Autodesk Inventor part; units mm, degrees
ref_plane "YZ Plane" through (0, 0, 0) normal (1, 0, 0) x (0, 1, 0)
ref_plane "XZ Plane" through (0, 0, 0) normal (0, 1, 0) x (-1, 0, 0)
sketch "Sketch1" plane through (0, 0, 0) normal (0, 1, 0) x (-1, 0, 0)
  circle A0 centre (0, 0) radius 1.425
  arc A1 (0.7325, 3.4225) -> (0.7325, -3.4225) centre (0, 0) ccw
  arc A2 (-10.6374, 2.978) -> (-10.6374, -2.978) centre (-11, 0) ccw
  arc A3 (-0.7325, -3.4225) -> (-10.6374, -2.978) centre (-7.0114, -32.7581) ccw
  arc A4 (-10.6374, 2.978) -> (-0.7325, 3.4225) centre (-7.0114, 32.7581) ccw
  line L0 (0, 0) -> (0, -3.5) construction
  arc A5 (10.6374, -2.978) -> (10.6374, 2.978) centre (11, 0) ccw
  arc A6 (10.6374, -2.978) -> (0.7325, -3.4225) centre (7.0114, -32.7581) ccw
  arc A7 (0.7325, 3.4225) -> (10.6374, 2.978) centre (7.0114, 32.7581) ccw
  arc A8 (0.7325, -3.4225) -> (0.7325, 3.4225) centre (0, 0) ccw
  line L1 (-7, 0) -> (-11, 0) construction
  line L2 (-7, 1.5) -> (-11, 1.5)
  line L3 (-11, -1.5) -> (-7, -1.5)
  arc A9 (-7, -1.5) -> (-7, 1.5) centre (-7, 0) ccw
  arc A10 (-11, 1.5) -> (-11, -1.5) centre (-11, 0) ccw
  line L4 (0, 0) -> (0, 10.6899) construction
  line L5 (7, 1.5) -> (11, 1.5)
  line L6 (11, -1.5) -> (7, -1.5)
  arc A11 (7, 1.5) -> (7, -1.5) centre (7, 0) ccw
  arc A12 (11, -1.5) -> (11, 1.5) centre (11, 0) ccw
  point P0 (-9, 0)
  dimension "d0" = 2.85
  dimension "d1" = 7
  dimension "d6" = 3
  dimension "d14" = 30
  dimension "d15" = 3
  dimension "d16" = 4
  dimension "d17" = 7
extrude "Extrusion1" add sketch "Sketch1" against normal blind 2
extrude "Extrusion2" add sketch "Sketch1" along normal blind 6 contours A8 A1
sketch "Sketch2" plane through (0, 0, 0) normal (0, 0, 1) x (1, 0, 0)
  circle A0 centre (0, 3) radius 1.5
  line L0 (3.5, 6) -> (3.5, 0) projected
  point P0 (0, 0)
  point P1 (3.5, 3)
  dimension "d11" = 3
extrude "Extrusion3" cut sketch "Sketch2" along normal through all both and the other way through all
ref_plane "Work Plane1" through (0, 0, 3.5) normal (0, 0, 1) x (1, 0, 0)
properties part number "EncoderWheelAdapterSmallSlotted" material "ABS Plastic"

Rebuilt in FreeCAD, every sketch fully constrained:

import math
import FreeCAD as App
import Part
import Sketcher
from FreeCAD import Vector
Q = App.Units.Quantity

doc = App.newDocument("Part")
body = doc.addObject("PartDesign::Body", "Body")

# Sketch on XZ plane
sketch1 = doc.addObject("Sketcher::SketchObject", "Sketch")
body.addObject(sketch1)
sketch1.AttachmentSupport = (doc.XZ_Plane, [""])
sketch1.MapMode = "FlatFace"
sketch1.addGeometry(Part.ArcOfCircle(Part.Circle(Vector(0, 0, 0), Vector(0, 0, 1), 3.5), math.radians(-102), math.radians(-78)), False)
sketch1.addGeometry(Part.ArcOfCircle(Part.Circle(Vector(-7, -32.8, 0), Vector(0, 0, 1), 30), math.radians(77.92), math.radians(96.94)), False)
sketch1.addGeometry(Part.ArcOfCircle(Part.Circle(Vector(-11, 0, 0), Vector(0, 0, 1), 3), math.radians(83), math.radians(277)), False)
sketch1.addGeometry(Part.ArcOfCircle(Part.Circle(Vector(-7, 32.8, 0), Vector(0, 0, 1), 30), math.radians(-96.94), math.radians(-77.92)), False)
sketch1.addGeometry(Part.ArcOfCircle(Part.Circle(Vector(0, 0, 0), Vector(0, 0, 1), 3.5), math.radians(78), math.radians(102)), False)
sketch1.addGeometry(Part.ArcOfCircle(Part.Circle(Vector(7, 32.8, 0), Vector(0, 0, 1), 30), math.radians(-102.08), math.radians(-83.06)), False)
sketch1.addGeometry(Part.ArcOfCircle(Part.Circle(Vector(11, 0, 0), Vector(0, 0, 1), 3), math.radians(-97), math.radians(97)), False)
sketch1.addGeometry(Part.ArcOfCircle(Part.Circle(Vector(7, -32.8, 0), Vector(0, 0, 1), 30), math.radians(83.06), math.radians(102.08)), False)
sketch1.addGeometry(Part.Circle(Vector(0, 0, 0), Vector(0, 0, 1), 1.4), False)
sketch1.addGeometry(Part.LineSegment(Vector(-7, 1.5, 0), Vector(-11, 1.5, 0)), False)
sketch1.addGeometry(Part.ArcOfCircle(Part.Circle(Vector(-11, 0, 0), Vector(0, 0, 1), 1.5), math.radians(90), math.radians(270)), False)
sketch1.addGeometry(Part.LineSegment(Vector(-11, -1.5, 0), Vector(-7, -1.5, 0)), False)
sketch1.addGeometry(Part.ArcOfCircle(Part.Circle(Vector(-7, 0, 0), Vector(0, 0, 1), 1.5), math.radians(-90), math.radians(90)), False)
sketch1.addGeometry(Part.ArcOfCircle(Part.Circle(Vector(7, 0, 0), Vector(0, 0, 1), 1.5), math.radians(90), math.radians(270)), False)
sketch1.addGeometry(Part.LineSegment(Vector(7, -1.5, 0), Vector(11, -1.5, 0)), False)
sketch1.addGeometry(Part.ArcOfCircle(Part.Circle(Vector(11, 0, 0), Vector(0, 0, 1), 1.5), math.radians(-90), math.radians(90)), False)
sketch1.addGeometry(Part.LineSegment(Vector(11, 1.5, 0), Vector(7, 1.5, 0)), False)
sketch1.addConstraint(Sketcher.Constraint("Tangent", 0, 1, 1, 1))
sketch1.addConstraint(Sketcher.Constraint("Tangent", 1, 2, 2, 2))
sketch1.addConstraint(Sketcher.Constraint("Tangent", 2, 1, 3, 1))
sketch1.addConstraint(Sketcher.Constraint("Tangent", 3, 2, 4, 2))
sketch1.addConstraint(Sketcher.Constraint("Tangent", 4, 1, 5, 1))
sketch1.addConstraint(Sketcher.Constraint("Tangent", 5, 2, 6, 2))
sketch1.addConstraint(Sketcher.Constraint("Tangent", 6, 1, 7, 1))
sketch1.addConstraint(Sketcher.Constraint("Tangent", 7, 2, 0, 2))
sketch1.addConstraint(Sketcher.Constraint("Tangent", 9, 2, 10, 1))
sketch1.addConstraint(Sketcher.Constraint("Tangent", 10, 2, 11, 1))
sketch1.addConstraint(Sketcher.Constraint("Tangent", 11, 2, 12, 1))
sketch1.addConstraint(Sketcher.Constraint("Tangent", 12, 2, 9, 1))
sketch1.addConstraint(Sketcher.Constraint("Tangent", 13, 2, 14, 1))
sketch1.addConstraint(Sketcher.Constraint("Tangent", 14, 2, 15, 1))
sketch1.addConstraint(Sketcher.Constraint("Tangent", 15, 2, 16, 1))
sketch1.addConstraint(Sketcher.Constraint("Tangent", 16, 2, 13, 1))
sketch1.addConstraint(Sketcher.Constraint("Horizontal", 9))
sketch1.addConstraint(Sketcher.Constraint("Horizontal", 11))
sketch1.addConstraint(Sketcher.Constraint("Horizontal", 14))
sketch1.addConstraint(Sketcher.Constraint("Horizontal", 16))
sketch1.addConstraint(Sketcher.Constraint("Coincident", 0, 3, -1, 1))
sketch1.addConstraint(Sketcher.Constraint("Coincident", 4, 3, -1, 1))
sketch1.addConstraint(Sketcher.Constraint("Coincident", 8, 3, -1, 1))
sketch1.addConstraint(Sketcher.Constraint("Coincident", 10, 3, 2, 3))
sketch1.addConstraint(Sketcher.Constraint("Coincident", 15, 3, 6, 3))
sketch1.addConstraint(Sketcher.Constraint("Equal", 1, 3))
sketch1.addConstraint(Sketcher.Constraint("Equal", 0, 4))
sketch1.addConstraint(Sketcher.Constraint("Equal", 3, 5))
sketch1.addConstraint(Sketcher.Constraint("Equal", 2, 6))
sketch1.addConstraint(Sketcher.Constraint("Equal", 5, 7))
sketch1.addConstraint(Sketcher.Constraint("Equal", 12, 13))
sketch1.addConstraint(Sketcher.Constraint("Symmetric", 2, 3, 6, 3, -1, 1))
sketch1.addConstraint(Sketcher.Constraint("Symmetric", 12, 3, 13, 3, -2))
sketch1.addConstraint(Sketcher.Constraint("Radius", 1, Q("30 mm")))
sketch1.addConstraint(Sketcher.Constraint("Radius", 2, Q("3 mm")))
sketch1.addConstraint(Sketcher.Constraint("Radius", 0, Q("3.5 mm")))
sketch1.addConstraint(Sketcher.Constraint("Radius", 10, Q("1.5 mm")))
sketch1.addConstraint(Sketcher.Constraint("Diameter", 8, Q("2.85 mm")))
sketch1.addConstraint(Sketcher.Constraint("DistanceX", 9, 2, 9, 1, Q("4 mm")))
sketch1.addConstraint(Sketcher.Constraint("DistanceX", 12, 3, -1, 1, Q("7 mm")))
pad1 = doc.addObject("PartDesign::Pad", "Pad")
body.addObject(pad1)
pad1.Profile = sketch1
pad1.Length = 2

# Sketch on XZ plane
sketch2 = doc.addObject("Sketcher::SketchObject", "Sketch001")
body.addObject(sketch2)
sketch2.AttachmentSupport = (doc.XZ_Plane, [""])
sketch2.MapMode = "FlatFace"
sketch2.addGeometry(Part.Circle(Vector(0, 0, 0), Vector(0, 0, 1), 3.5), False)
sketch2.addGeometry(Part.Circle(Vector(0, 0, 0), Vector(0, 0, 1), 1.4), False)
sketch2.addConstraint(Sketcher.Constraint("Coincident", 0, 3, -1, 1))
sketch2.addConstraint(Sketcher.Constraint("Coincident", 1, 3, -1, 1))
sketch2.addConstraint(Sketcher.Constraint("Diameter", 0, Q("7 mm")))
sketch2.addConstraint(Sketcher.Constraint("Diameter", 1, Q("2.85 mm")))
pad2 = doc.addObject("PartDesign::Pad", "Pad001")
body.addObject(pad2)
pad2.Profile = sketch2
pad2.Length = 6
pad2.Reversed = True

# Sketch on XY plane
sketch3 = doc.addObject("Sketcher::SketchObject", "Sketch002")
body.addObject(sketch3)
sketch3.AttachmentSupport = (doc.XY_Plane, [""])
sketch3.MapMode = "FlatFace"
sketch3.addGeometry(Part.Circle(Vector(0, 3, 0), Vector(0, 0, 1), 1.5), False)
sketch3.addConstraint(Sketcher.Constraint("PointOnObject", 0, 3, -2))
sketch3.addConstraint(Sketcher.Constraint("Diameter", 0, Q("3 mm")))
sketch3.addConstraint(Sketcher.Constraint("DistanceY", -1, 1, 0, 3, Q("3 mm")))
pocket1 = doc.addObject("PartDesign::Pocket", "Pocket")
body.addObject(pocket1)
pocket1.Profile = sketch3
pocket1.Type = "ThroughAll"
pocket1.Midplane = True

doc.recompute()
